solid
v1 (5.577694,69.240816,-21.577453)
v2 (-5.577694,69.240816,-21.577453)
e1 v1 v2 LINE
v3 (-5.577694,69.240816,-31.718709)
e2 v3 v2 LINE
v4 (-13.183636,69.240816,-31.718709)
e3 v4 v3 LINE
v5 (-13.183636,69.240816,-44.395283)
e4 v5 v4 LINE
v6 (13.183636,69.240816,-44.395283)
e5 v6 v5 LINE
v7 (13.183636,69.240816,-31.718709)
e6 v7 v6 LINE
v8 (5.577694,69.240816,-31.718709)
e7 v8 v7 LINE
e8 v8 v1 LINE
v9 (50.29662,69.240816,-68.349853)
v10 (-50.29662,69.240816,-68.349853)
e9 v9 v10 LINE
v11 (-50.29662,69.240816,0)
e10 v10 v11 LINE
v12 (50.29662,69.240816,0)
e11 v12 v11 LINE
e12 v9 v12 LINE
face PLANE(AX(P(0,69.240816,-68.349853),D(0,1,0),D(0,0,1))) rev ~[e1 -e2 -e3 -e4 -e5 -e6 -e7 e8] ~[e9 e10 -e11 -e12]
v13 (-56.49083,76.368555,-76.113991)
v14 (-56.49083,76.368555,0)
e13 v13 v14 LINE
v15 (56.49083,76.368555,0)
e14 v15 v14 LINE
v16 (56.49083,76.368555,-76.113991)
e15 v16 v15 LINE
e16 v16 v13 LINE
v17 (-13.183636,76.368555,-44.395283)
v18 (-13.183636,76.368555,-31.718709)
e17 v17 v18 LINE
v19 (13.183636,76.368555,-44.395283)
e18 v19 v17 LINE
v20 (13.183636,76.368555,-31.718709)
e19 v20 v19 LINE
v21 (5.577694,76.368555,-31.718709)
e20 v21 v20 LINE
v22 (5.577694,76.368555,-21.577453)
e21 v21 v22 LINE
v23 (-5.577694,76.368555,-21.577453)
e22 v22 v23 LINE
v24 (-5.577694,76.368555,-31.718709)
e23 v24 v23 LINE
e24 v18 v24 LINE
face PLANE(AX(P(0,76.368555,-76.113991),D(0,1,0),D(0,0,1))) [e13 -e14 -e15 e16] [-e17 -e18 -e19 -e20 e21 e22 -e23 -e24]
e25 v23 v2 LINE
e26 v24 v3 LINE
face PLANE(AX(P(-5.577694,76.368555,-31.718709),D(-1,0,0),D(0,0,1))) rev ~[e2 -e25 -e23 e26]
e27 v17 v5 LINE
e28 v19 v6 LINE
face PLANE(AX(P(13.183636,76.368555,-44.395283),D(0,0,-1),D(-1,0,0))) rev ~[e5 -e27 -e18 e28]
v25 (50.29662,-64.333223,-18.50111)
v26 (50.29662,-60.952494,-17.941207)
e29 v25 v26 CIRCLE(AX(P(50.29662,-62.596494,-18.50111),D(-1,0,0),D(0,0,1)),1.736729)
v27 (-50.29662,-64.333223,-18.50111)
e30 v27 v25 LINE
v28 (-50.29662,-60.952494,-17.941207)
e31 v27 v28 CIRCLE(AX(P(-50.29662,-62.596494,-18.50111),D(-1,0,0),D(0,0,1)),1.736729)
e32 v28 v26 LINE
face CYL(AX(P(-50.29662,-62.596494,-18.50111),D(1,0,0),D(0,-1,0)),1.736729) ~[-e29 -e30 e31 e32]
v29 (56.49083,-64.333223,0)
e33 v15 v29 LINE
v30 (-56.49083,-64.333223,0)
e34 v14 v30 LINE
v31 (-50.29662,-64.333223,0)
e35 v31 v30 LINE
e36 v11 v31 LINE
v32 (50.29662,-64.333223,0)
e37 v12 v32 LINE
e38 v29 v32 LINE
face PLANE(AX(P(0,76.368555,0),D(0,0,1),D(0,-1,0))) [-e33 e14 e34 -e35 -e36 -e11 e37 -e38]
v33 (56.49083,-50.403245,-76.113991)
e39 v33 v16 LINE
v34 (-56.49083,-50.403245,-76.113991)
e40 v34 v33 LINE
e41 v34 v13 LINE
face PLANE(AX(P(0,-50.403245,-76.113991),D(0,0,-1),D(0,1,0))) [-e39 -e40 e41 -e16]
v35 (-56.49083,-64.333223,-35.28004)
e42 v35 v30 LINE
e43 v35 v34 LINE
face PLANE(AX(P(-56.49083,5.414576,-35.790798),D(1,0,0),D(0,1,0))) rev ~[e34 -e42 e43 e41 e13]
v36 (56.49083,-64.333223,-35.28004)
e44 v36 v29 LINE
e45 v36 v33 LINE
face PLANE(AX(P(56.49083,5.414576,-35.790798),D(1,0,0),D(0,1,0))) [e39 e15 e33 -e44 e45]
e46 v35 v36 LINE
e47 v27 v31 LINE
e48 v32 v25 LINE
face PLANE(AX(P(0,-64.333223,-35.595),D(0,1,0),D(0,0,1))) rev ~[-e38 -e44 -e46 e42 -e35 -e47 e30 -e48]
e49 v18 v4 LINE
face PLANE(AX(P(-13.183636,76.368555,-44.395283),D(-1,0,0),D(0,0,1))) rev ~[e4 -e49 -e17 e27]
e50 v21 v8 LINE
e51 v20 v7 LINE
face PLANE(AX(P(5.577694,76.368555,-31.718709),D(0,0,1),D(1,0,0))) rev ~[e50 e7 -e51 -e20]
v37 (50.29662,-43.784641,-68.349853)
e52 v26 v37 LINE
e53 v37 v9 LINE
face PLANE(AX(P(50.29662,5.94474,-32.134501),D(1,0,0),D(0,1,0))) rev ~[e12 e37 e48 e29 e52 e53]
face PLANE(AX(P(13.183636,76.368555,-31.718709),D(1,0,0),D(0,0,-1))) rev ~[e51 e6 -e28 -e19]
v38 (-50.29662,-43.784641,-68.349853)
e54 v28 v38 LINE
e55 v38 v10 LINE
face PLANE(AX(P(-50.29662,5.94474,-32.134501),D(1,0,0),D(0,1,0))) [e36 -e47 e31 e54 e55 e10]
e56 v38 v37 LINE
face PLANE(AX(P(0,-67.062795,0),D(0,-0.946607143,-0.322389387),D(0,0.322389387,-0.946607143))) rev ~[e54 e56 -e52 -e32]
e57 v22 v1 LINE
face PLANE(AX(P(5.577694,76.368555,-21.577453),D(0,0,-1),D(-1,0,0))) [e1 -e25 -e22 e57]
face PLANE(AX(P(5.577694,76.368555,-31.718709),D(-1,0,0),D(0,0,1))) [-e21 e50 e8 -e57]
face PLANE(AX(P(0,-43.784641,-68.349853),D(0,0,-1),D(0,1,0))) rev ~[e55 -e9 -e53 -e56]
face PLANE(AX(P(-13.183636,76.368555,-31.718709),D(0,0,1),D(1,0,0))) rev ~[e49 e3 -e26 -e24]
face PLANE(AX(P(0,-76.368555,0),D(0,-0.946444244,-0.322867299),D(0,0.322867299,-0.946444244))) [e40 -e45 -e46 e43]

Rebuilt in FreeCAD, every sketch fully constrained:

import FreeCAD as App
import Part
import Sketcher

V = App.Vector
Q = App.Units.Quantity


def edges_at(feature, points):
    """Names of the edges that pass closest to the given points."""
    edges = feature.Shape.Edges
    near = lambda p: min(range(len(edges)), key=lambda i: edges[i].distToShape(Part.Vertex(*p))[0])
    return sorted({f"Edge{near(p) + 1}" for p in points})


def add_polygon(sketch, points):
    """Adds a closed chain of lines whose ends are joined by coincident constraints."""
    first, n = sketch.GeometryCount, len(points)
    for a, b in zip(points, points[1:] + points[:1]):
        sketch.addGeometry(Part.LineSegment(App.Vector(*a, 0), App.Vector(*b, 0)), False)
    for i in range(n):
        sketch.addConstraint(Sketcher.Constraint("Coincident", first + i, 2, first + (i + 1) % n, 1))

doc = App.newDocument("Part")
body = doc.addObject("PartDesign::Body", "Body")

# Sketch on YZ plane
sketch1 = doc.addObject("Sketcher::SketchObject", "Sketch")
body.addObject(sketch1)
sketch1.AttachmentSupport = (doc.YZ_Plane, [""])
sketch1.MapMode = "FlatFace"
add_polygon(sketch1, [(76, 0), (-76, 0), (-50, -76), (76, -76)])  # lines 0-3
sketch1.addConstraint(Sketcher.Constraint("Horizontal", 0))
sketch1.addConstraint(Sketcher.Constraint("Horizontal", 2))
sketch1.addConstraint(Sketcher.Constraint("Vertical", 3))
sketch1.addConstraint(Sketcher.Constraint("Symmetric", 0, 2, 3, 2, -1, 1))
sketch1.addConstraint(Sketcher.Constraint("DistanceX", 2, 1, 2, 2, Q("126.7718 mm")))
sketch1.addConstraint(Sketcher.Constraint("Distance", 1, Q("80.420999 mm")))
sketch1.addConstraint(Sketcher.Constraint("DistanceX", 0, 2, 0, 1, Q("152.737111 mm")))
pad1 = doc.addObject("PartDesign::Pad", "Pad")
body.addObject(pad1)
pad1.Profile = sketch1
pad1.Length = 112.98166
pad1.Midplane = True

# Sketch on YZ plane
sketch2 = doc.addObject("Sketcher::SketchObject", "Sketch001")
body.addObject(sketch2)
sketch2.AttachmentSupport = (doc.YZ_Plane, [""])
sketch2.MapMode = "FlatFace"
add_polygon(sketch2, [(69, 0), (-67, 0), (-44, -68), (69, -68)])  # lines 0-3
sketch2.addConstraint(Sketcher.Constraint("Horizontal", 0))
sketch2.addConstraint(Sketcher.Constraint("Horizontal", 2))
sketch2.addConstraint(Sketcher.Constraint("Vertical", 3))
sketch2.addConstraint(Sketcher.Constraint("PointOnObject", 0, 2, -1))
sketch2.addConstraint(Sketcher.Constraint("DistanceX", 0, 2, 0, 1, Q("136.303611 mm")))
sketch2.addConstraint(Sketcher.Constraint("Distance", 1, Q("72.205089 mm")))
sketch2.addConstraint(Sketcher.Constraint("DistanceX", 2, 1, 2, 2, Q("113.025457 mm")))
sketch2.addConstraint(Sketcher.Constraint("DistanceX", 1, 2, -1, 1, Q("43.784641 mm")))
pocket1 = doc.addObject("PartDesign::Pocket", "Pocket")
body.addObject(pocket1)
pocket1.Profile = sketch2
pocket1.Length = 100.59324
pocket1.Midplane = True

# Sketch on YZ plane
sketch3 = doc.addObject("Sketcher::SketchObject", "Sketch002")
body.addObject(sketch3)
sketch3.AttachmentSupport = (doc.YZ_Plane, [""])
sketch3.MapMode = "FlatFace"
add_polygon(sketch3, [(-85, 11), (-85, -24), (-67, -24), (-67, 11)])  # lines 0-3
sketch3.addConstraint(Sketcher.Constraint("Vertical", 0))
sketch3.addConstraint(Sketcher.Constraint("Horizontal", 1))
sketch3.addConstraint(Sketcher.Constraint("Vertical", 2))
sketch3.addConstraint(Sketcher.Constraint("Horizontal", 3))
sketch3.addConstraint(Sketcher.Constraint("DistanceY", 0, 2, 0, 1, Q("34.650001 mm")))
sketch3.addConstraint(Sketcher.Constraint("DistanceX", 0, 2, -1, 1, Q("84.577501 mm")))
sketch3.addConstraint(Sketcher.Constraint("DistanceY", 0, 2, -1, 1, Q("23.940001 mm")))
sketch3.addConstraint(Sketcher.Constraint("DistanceX", 1, 2, -1, 1, Q("66.937499 mm")))
pocket2 = doc.addObject("PartDesign::Pocket", "Pocket001")
body.addObject(pocket2)
pocket2.Profile = sketch3
pocket2.Length = Q("12 in")
pocket2.Midplane = True

# Sketch on YZ plane
sketch4 = doc.addObject("Sketcher::SketchObject", "Sketch003")
body.addObject(sketch4)
sketch4.AttachmentSupport = (doc.YZ_Plane, [""])
sketch4.MapMode = "FlatFace"
add_polygon(sketch4, [(-73, 5), (-73, -36), (-64, -36), (-64, 5)])  # lines 0-3
sketch4.addConstraint(Sketcher.Constraint("Vertical", 0))
sketch4.addConstraint(Sketcher.Constraint("Horizontal", 1))
sketch4.addConstraint(Sketcher.Constraint("Vertical", 2))
sketch4.addConstraint(Sketcher.Constraint("Horizontal", 3))
sketch4.addConstraint(Sketcher.Constraint("DistanceX", 1, 1, 1, 2, Q("8.189999 mm")))
sketch4.addConstraint(Sketcher.Constraint("DistanceY", 0, 2, 0, 1, Q("40.635 mm")))
sketch4.addConstraint(Sketcher.Constraint("DistanceY", 0, 2, -1, 1, Q("35.595 mm")))
sketch4.addConstraint(Sketcher.Constraint("DistanceX", 0, 2, -1, 1, Q("72.523221 mm")))
pocket3 = doc.addObject("PartDesign::Pocket", "Pocket002")
body.addObject(pocket3)
pocket3.Profile = sketch4
pocket3.Length = Q("12 in")
pocket3.Midplane = True
doc.recompute()

fillet = doc.addObject("PartDesign::Fillet", "Fillet")
body.addObject(fillet)
fillet.Base = (pocket3, edges_at(pocket3, [(0, -64.333, -8.015)]))
fillet.Radius = 1.736729

# Sketch on XZ plane
sketch5 = doc.addObject("Sketcher::SketchObject", "Sketch004")
body.addObject(sketch5)
sketch5.AttachmentSupport = (doc.XZ_Plane, [""])
sketch5.MapMode = "FlatFace"
sketch5.AttachmentOffset = App.Placement(V(0, 0, -76.368555), App.Rotation())
add_polygon(sketch5, [(6, -32), (13, -32), (13, -44), (-13, -44), (-13, -32), (-6, -32), (-6, -22), (6, -22)])  # lines 0-7
sketch5.addConstraint(Sketcher.Constraint("Horizontal", 0))
sketch5.addConstraint(Sketcher.Constraint("Vertical", 1))
sketch5.addConstraint(Sketcher.Constraint("Horizontal", 2))
sketch5.addConstraint(Sketcher.Constraint("Vertical", 3))
sketch5.addConstraint(Sketcher.Constraint("Horizontal", 4))
sketch5.addConstraint(Sketcher.Constraint("Vertical", 5))
sketch5.addConstraint(Sketcher.Constraint("Horizontal", 6))
sketch5.addConstraint(Sketcher.Constraint("Vertical", 7))
sketch5.addConstraint(Sketcher.Constraint("Symmetric", 0, 2, 3, 2, -2))
sketch5.addConstraint(Sketcher.Constraint("Equal", 0, 4))
sketch5.addConstraint(Sketcher.Constraint("DistanceX", 0, 1, 0, 2, Q("7.605942 mm")))
sketch5.addConstraint(Sketcher.Constraint("DistanceX", 2, 2, 2, 1, Q("26.367271 mm")))
sketch5.addConstraint(Sketcher.Constraint("DistanceY", 1, 2, 1, 1, Q("12.676574 mm")))
sketch5.addConstraint(Sketcher.Constraint("DistanceY", 5, 1, 5, 2, Q("10.141255 mm")))
sketch5.addConstraint(Sketcher.Constraint("DistanceY", 0, 2, -1, 1, Q("31.718709 mm")))
pocket4 = doc.addObject("PartDesign::Pocket", "Pocket003")
body.addObject(pocket4)
pocket4.Profile = sketch5
pocket4.Length = 26.2403
pocket4.Reversed = True

doc.recompute()
